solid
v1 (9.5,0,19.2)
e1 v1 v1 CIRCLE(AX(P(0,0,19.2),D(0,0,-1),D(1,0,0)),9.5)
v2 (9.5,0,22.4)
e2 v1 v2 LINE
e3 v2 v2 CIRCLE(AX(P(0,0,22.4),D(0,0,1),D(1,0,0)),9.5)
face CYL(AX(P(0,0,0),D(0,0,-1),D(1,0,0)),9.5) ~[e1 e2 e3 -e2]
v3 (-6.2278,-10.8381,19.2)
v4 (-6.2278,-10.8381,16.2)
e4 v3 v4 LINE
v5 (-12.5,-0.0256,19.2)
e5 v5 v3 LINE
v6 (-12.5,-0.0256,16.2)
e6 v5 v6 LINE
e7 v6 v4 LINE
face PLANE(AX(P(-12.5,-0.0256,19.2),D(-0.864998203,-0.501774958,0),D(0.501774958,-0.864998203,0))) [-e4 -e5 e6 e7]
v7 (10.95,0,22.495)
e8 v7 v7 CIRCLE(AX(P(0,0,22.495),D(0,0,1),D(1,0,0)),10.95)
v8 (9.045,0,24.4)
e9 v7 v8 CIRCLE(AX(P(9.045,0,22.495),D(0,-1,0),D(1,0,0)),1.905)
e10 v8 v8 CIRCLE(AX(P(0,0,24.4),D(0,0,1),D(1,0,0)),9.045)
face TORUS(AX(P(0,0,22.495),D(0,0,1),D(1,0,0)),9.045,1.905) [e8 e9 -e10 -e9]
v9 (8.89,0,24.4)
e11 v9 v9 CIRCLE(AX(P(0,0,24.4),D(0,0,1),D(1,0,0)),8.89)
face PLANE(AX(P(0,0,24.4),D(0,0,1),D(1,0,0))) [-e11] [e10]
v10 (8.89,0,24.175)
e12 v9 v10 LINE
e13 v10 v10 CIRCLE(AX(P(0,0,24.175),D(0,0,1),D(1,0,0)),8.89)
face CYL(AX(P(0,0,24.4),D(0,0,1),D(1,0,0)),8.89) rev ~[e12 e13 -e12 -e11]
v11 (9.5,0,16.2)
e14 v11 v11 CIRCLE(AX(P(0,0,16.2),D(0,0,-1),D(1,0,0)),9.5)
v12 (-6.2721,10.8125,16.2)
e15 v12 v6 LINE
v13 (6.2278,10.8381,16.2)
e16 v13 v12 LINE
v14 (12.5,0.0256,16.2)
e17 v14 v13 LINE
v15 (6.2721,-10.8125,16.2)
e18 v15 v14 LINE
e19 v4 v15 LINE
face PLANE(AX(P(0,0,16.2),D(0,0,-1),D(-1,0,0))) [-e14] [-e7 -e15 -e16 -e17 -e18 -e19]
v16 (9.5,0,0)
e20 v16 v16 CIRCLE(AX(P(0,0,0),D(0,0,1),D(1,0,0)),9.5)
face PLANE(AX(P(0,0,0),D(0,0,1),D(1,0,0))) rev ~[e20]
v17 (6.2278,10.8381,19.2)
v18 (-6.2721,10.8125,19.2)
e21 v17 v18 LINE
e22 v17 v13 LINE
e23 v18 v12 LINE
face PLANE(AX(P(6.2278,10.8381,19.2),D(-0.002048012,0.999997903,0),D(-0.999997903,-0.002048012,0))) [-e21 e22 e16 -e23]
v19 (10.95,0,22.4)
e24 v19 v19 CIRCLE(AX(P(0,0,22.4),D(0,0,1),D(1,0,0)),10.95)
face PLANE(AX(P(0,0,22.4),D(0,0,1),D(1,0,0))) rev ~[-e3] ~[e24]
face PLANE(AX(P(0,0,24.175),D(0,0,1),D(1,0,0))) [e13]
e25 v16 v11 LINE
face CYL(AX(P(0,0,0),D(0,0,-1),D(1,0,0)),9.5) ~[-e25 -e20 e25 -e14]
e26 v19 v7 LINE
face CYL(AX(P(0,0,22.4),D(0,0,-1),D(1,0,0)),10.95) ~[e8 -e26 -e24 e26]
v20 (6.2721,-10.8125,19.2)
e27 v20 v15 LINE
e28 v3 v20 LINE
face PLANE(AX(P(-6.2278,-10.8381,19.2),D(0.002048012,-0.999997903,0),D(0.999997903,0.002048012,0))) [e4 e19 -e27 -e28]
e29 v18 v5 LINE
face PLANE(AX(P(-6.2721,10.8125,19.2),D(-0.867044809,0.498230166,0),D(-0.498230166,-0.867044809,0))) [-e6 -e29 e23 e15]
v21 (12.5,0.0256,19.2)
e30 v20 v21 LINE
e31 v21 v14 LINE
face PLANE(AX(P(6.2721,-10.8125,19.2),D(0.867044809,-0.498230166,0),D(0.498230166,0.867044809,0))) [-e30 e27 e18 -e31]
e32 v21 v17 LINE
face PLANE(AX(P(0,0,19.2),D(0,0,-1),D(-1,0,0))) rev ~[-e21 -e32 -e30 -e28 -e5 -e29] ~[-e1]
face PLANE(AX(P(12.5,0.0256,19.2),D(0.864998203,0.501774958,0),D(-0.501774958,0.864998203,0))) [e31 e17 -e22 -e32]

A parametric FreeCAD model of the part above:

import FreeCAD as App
import Part
import Sketcher
from FreeCAD import Vector


def edges_at(feature, points):
    """Names of the edges that pass closest to the given points."""
    edges = feature.Shape.Edges
    near = lambda p: min(range(len(edges)), key=lambda i: edges[i].distToShape(Part.Vertex(*p))[0])
    return sorted({f"Edge{near(p) + 1}" for p in points})

doc = App.newDocument("Part")
body = doc.addObject("PartDesign::Body", "Body")

# Sketch on XY plane
sketch1 = body.newObject("Sketcher::SketchObject", "Sketch")
sketch1.AttachmentSupport = (doc.getObject("XY_Plane"), [""])
sketch1.MapMode = "FlatFace"
sketch1.addGeometry(Part.Circle(Vector(0, 0, 0), Vector(0, 0, 1), 9.5), False)
sketch1.addConstraint([
    Sketcher.Constraint("Coincident", 0, 3, -1, 1),
    Sketcher.Constraint("Diameter", 0, 19.0),
])
pad1 = body.newObject("PartDesign::Pad", "Pad")
pad1.Profile = sketch1
pad1.Length = 22.4

# Sketch on XY plane
sketch2 = body.newObject("Sketcher::SketchObject", "Sketch001")
sketch2.AttachmentSupport = (doc.getObject("XY_Plane"), [""])
sketch2.MapMode = "FlatFace"
sketch2.AttachmentOffset = App.Placement(Vector(0, 0, 22.4), App.Rotation())
sketch2.addGeometry(Part.Circle(Vector(0, 0, 0), Vector(0, 0, 1), 10.95), False)
sketch2.addConstraint([
    Sketcher.Constraint("Coincident", 0, 3, -1, 1),
    Sketcher.Constraint("Diameter", 0, 21.9),
])
pad2 = body.newObject("PartDesign::Pad", "Pad001")
pad2.Profile = sketch2
pad2.Length = 2
doc.recompute()

fillet = body.newObject("PartDesign::Fillet", "Fillet")
fillet.Base = (pad2, edges_at(pad2, [(-10.95, 0, 24.4)]))
fillet.Radius = 1.905

# Sketch on XY plane
sketch3 = body.newObject("Sketcher::SketchObject", "Sketch002")
sketch3.AttachmentSupport = (doc.getObject("XY_Plane"), [""])
sketch3.MapMode = "FlatFace"
sketch3.AttachmentOffset = App.Placement(Vector(0, 0, 19.2), App.Rotation())
sketch3.addGeometry([
    Part.LineSegment(Vector(6.2721, -10.8125, 0), Vector(-6.2278, -10.8381, 0)),  # 0
    Part.LineSegment(Vector(-6.2278, -10.8381, 0), Vector(-12.5, -0.0256, 0)),  # 1
    Part.LineSegment(Vector(-12.5, -0.0256, 0), Vector(-6.2721, 10.8125, 0)),  # 2
    Part.LineSegment(Vector(-6.2721, 10.8125, 0), Vector(6.2278, 10.8381, 0)),  # 3
    Part.LineSegment(Vector(6.2278, 10.8381, 0), Vector(12.5, 0.0256, 0)),  # 4
    Part.LineSegment(Vector(12.5, 0.0256, 0), Vector(6.2721, -10.8125, 0)),  # 5
], False)
sketch3.addConstraint([
    Sketcher.Constraint("Coincident", 0, 2, 1, 1),
    Sketcher.Constraint("Coincident", 1, 2, 2, 1),
    Sketcher.Constraint("Coincident", 2, 2, 3, 1),
    Sketcher.Constraint("Coincident", 3, 2, 4, 1),
    Sketcher.Constraint("Coincident", 4, 2, 5, 1),
    Sketcher.Constraint("Coincident", 5, 2, 0, 1),
    Sketcher.Constraint("Symmetric", 0, 2, 3, 2, -1, 1),
    Sketcher.Constraint("Symmetric", 1, 2, 4, 2, -1, 1),
    Sketcher.Constraint("Symmetric", 2, 2, 5, 2, -1, 1),
    Sketcher.Constraint("Equal", 0, 1),
    Sketcher.Constraint("Equal", 1, 2),
    Sketcher.Constraint("DistanceX", 1, 2, 4, 2, 25.0),
    Sketcher.Constraint("Distance", 0, 12.5),
    Sketcher.Constraint("DistanceY", -1, 1, 2, 2, 10.8125),
    Sketcher.Constraint("DistanceY", 0, 2, 1, 2, 10.8125),
])
pad3 = body.newObject("PartDesign::Pad", "Pad002")
pad3.Profile = sketch3
pad3.Length = 3
pad3.Reversed = True

# Sketch on XY plane
sketch4 = body.newObject("Sketcher::SketchObject", "Sketch003")
sketch4.AttachmentSupport = (doc.getObject("XY_Plane"), [""])
sketch4.MapMode = "FlatFace"
sketch4.AttachmentOffset = App.Placement(Vector(0, 0, 24.4), App.Rotation())
sketch4.addGeometry(Part.Circle(Vector(0, 0, 0), Vector(0, 0, 1), 8.89), False)
sketch4.addConstraint([
    Sketcher.Constraint("Coincident", 0, 3, -1, 1),
    Sketcher.Constraint("Diameter", 0, 17.78),
])
pocket1 = body.newObject("PartDesign::Pocket", "Pocket")
pocket1.Profile = sketch4
pocket1.Length = 0.225

doc.recompute()
